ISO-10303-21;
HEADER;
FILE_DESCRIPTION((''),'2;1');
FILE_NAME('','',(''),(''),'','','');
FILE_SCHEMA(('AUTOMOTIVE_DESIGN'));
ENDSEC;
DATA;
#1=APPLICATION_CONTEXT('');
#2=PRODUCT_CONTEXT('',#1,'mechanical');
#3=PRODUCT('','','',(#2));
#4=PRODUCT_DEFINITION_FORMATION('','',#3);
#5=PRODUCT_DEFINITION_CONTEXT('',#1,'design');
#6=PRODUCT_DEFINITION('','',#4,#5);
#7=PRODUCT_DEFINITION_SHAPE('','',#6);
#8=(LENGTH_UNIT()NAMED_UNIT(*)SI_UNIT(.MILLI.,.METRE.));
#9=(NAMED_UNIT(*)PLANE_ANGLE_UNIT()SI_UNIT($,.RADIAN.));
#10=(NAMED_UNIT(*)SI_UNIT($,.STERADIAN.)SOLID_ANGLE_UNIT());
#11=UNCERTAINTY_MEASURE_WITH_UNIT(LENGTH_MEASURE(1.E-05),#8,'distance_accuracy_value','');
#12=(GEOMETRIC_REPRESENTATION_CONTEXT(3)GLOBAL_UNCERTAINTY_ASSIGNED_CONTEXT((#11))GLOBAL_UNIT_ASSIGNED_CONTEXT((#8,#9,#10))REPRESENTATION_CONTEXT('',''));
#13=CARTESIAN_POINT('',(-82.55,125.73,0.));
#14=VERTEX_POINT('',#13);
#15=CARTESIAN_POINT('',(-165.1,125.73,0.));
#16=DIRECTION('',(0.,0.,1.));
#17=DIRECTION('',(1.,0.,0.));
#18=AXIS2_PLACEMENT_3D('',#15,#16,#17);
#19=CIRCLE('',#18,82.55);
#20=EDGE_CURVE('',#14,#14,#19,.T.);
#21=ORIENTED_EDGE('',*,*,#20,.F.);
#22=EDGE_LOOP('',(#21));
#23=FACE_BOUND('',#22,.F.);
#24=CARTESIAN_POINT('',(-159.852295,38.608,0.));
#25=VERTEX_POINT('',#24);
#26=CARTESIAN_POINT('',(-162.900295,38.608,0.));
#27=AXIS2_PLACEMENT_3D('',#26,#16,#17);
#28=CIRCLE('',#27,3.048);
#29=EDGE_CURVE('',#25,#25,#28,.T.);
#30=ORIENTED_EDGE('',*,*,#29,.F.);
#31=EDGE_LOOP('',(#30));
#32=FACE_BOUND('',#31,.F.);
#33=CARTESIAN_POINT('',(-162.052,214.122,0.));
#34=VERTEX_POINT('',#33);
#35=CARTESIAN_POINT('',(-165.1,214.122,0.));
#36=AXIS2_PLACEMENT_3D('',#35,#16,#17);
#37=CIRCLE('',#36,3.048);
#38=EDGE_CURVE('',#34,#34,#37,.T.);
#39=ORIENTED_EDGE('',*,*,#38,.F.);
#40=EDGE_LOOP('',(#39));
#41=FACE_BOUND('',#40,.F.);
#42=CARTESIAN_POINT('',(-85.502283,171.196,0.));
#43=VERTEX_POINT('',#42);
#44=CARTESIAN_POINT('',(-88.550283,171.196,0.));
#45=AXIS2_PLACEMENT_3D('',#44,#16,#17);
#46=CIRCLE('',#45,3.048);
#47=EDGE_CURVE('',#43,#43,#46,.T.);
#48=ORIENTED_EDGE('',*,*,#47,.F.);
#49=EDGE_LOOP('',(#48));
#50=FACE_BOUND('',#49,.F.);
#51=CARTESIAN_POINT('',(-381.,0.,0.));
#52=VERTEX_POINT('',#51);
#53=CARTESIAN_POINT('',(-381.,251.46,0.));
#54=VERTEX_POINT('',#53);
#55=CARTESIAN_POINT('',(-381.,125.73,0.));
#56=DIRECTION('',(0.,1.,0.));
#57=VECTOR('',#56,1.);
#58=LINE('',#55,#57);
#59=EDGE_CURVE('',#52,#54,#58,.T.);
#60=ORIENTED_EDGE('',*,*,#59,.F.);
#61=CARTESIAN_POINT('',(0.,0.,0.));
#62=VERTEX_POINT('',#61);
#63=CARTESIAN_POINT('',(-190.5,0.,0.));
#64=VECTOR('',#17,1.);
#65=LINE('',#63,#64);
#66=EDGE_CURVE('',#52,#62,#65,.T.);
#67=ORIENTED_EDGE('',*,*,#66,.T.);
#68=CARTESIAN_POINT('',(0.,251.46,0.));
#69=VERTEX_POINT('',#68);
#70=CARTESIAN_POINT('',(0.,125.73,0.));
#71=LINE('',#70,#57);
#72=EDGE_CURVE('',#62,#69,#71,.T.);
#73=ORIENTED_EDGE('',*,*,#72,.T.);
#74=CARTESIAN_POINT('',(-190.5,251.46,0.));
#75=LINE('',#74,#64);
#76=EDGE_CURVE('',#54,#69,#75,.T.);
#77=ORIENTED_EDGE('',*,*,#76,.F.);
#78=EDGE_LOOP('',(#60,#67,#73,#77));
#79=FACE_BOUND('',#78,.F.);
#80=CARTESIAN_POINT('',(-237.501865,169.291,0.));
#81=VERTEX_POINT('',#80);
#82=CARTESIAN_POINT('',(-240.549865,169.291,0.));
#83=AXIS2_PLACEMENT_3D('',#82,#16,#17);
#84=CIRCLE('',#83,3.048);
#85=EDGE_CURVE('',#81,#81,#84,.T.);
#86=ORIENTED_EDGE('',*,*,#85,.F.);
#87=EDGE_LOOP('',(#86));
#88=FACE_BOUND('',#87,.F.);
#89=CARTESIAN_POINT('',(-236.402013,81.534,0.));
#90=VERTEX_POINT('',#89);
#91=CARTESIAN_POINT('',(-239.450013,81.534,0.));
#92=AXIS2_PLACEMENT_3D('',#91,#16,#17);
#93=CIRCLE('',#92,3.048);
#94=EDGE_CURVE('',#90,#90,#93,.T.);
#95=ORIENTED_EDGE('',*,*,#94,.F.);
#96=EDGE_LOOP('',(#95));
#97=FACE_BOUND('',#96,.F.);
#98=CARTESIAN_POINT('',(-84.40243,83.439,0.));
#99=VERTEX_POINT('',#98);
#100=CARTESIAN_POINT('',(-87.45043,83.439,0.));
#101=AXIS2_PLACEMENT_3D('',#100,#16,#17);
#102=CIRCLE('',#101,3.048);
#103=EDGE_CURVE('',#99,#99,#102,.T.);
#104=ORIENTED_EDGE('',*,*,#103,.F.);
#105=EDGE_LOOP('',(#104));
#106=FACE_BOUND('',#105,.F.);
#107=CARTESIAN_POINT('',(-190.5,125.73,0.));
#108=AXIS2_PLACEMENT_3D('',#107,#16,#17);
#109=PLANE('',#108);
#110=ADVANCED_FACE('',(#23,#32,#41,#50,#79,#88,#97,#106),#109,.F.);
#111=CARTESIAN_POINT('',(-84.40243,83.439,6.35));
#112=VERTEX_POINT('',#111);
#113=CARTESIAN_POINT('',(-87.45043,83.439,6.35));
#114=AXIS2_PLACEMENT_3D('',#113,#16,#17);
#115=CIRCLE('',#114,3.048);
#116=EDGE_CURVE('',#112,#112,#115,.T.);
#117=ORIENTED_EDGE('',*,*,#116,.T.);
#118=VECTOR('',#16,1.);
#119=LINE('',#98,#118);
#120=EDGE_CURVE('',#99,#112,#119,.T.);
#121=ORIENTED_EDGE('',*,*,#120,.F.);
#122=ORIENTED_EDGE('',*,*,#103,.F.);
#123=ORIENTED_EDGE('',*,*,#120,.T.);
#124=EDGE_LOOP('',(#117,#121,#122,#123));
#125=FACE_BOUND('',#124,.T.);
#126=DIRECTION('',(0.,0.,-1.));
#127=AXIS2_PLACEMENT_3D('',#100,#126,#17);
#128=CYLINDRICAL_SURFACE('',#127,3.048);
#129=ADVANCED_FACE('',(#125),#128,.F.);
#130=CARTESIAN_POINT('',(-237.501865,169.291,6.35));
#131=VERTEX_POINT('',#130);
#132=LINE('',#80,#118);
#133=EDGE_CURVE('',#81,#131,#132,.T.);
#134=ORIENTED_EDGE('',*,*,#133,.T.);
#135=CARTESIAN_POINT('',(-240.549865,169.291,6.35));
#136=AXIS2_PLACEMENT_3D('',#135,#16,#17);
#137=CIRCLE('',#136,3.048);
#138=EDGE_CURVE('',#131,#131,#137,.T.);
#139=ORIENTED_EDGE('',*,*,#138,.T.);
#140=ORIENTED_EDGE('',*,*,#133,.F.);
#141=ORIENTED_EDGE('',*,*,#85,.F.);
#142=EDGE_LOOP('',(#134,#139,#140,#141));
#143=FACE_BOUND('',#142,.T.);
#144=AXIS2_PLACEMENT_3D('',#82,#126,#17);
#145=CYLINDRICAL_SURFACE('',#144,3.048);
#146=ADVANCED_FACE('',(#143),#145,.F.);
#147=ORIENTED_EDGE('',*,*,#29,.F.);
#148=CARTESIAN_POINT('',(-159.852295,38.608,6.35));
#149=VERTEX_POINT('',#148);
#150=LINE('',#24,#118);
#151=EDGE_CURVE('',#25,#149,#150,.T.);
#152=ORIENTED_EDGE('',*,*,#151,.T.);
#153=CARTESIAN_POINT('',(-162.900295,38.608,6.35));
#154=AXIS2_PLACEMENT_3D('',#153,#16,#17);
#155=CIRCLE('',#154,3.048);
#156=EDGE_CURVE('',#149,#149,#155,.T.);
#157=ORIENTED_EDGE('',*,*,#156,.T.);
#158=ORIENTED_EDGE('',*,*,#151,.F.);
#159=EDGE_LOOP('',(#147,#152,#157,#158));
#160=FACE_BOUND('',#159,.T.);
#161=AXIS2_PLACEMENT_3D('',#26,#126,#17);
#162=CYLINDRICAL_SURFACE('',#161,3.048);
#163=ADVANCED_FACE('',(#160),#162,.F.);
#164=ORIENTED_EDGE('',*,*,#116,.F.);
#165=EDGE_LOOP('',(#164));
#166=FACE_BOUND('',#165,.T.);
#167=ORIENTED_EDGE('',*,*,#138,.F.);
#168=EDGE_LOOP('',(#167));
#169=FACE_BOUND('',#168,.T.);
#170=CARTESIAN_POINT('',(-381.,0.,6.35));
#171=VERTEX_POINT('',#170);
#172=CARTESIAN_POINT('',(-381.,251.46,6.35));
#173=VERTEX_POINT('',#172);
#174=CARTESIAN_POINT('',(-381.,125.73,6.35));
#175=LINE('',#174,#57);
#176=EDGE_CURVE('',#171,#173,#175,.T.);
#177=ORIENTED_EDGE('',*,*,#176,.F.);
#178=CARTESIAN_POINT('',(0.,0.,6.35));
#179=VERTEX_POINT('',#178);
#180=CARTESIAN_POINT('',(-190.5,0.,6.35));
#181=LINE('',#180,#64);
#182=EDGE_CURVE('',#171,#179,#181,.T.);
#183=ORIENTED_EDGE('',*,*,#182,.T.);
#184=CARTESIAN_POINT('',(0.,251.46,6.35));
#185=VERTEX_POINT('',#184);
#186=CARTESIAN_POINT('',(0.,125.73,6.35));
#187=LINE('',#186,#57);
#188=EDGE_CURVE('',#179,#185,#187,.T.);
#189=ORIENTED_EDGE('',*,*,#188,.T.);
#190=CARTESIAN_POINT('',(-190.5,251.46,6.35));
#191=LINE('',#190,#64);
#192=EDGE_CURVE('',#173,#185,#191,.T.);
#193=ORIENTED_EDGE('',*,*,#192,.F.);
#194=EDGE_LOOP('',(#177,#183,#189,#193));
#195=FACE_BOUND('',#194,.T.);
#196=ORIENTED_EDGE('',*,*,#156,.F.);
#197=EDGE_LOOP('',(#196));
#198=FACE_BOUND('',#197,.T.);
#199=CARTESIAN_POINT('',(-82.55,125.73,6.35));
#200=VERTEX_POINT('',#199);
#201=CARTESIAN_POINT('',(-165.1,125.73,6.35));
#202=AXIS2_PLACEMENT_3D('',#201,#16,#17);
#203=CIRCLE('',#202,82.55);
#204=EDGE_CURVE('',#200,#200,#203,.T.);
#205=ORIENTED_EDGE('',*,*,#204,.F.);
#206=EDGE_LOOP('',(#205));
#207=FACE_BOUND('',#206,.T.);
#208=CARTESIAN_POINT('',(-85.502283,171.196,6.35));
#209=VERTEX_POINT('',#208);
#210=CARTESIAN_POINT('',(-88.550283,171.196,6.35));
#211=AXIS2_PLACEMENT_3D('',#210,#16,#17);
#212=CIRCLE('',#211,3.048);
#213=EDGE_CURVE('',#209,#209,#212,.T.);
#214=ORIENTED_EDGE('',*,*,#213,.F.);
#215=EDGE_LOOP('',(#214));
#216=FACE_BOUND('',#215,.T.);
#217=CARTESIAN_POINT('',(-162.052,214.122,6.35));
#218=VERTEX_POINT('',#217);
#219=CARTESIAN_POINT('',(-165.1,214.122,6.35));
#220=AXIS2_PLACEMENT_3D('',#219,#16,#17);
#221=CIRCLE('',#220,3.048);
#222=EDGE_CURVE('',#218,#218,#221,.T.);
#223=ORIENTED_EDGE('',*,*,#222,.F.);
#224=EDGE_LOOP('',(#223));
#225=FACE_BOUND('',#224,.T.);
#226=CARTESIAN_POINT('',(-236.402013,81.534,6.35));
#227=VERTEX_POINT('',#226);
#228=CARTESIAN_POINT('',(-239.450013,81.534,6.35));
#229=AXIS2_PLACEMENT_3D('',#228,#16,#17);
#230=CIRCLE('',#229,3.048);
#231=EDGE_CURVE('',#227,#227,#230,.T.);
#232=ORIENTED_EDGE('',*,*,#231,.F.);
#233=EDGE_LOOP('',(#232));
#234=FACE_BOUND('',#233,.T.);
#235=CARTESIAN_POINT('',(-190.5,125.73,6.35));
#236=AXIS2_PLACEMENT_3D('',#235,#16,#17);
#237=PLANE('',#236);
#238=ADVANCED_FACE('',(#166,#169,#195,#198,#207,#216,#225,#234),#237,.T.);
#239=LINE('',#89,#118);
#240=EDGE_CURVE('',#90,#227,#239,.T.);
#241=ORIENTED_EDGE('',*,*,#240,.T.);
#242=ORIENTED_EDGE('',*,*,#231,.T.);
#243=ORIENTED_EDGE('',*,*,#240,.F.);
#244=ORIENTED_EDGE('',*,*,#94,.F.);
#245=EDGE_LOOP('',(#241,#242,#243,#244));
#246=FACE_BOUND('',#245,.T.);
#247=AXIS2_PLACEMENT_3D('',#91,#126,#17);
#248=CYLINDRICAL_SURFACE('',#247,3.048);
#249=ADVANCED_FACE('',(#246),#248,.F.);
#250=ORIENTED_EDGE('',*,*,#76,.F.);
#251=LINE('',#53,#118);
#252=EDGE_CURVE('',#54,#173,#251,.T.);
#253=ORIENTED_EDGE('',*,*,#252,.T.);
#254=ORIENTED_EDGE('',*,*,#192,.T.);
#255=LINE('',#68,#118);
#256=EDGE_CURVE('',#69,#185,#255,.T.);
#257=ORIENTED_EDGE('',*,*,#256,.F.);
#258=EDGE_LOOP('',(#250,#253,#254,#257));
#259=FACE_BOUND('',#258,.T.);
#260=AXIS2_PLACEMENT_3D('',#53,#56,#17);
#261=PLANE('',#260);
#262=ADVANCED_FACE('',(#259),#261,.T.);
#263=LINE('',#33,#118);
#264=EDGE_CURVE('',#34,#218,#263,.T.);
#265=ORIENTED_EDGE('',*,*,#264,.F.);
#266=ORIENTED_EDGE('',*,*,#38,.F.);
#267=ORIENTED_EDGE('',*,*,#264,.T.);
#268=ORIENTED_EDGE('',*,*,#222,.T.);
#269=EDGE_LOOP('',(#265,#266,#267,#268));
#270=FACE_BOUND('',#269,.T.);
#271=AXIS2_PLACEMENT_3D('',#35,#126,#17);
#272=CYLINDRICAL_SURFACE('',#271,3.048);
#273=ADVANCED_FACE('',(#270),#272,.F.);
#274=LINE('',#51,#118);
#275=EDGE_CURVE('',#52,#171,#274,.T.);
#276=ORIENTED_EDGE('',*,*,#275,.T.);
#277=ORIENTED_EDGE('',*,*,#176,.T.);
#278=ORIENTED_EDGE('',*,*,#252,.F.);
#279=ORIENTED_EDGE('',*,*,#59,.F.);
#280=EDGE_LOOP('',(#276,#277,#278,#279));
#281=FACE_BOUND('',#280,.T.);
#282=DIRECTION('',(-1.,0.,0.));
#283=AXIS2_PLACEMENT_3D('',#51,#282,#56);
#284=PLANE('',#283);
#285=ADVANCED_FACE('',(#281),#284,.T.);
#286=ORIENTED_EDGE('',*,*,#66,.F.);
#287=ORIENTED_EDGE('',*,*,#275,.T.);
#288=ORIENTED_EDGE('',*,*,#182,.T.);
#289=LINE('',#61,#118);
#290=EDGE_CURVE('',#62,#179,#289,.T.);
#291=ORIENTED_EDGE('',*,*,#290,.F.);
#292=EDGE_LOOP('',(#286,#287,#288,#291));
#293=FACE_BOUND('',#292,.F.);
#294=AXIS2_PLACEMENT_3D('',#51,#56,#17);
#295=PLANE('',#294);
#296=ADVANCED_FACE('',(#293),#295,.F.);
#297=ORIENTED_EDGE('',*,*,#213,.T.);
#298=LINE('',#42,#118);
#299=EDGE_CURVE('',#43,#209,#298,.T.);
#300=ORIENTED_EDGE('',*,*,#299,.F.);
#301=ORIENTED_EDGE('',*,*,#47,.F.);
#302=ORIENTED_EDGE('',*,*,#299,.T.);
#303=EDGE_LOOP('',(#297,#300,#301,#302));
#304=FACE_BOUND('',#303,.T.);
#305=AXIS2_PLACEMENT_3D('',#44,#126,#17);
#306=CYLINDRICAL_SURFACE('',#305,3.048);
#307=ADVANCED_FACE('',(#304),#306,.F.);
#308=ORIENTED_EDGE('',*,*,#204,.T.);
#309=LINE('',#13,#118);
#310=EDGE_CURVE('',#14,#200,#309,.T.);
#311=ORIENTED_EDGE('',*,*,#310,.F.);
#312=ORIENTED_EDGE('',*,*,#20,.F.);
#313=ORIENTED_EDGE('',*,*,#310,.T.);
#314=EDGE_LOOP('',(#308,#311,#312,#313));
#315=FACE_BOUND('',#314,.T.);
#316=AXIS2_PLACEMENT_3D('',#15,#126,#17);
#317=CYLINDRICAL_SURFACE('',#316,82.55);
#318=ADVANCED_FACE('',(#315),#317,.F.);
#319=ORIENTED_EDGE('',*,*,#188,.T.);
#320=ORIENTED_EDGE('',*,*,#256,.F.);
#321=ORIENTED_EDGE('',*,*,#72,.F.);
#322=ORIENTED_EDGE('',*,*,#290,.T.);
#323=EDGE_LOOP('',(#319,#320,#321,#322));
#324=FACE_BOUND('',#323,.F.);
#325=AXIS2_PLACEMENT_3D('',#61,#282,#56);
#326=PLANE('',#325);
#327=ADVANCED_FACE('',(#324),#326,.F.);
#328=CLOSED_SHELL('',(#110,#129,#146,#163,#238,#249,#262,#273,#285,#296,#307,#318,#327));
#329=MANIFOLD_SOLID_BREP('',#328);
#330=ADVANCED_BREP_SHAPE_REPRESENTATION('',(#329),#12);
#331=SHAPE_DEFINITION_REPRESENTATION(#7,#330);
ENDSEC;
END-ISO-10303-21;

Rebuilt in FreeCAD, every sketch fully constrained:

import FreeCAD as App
import Part
import Sketcher
from FreeCAD import Vector
Q = App.Units.Quantity

doc = App.newDocument("Part")
params = doc.addObject("Spreadsheet::Sheet", "Params")
for row, (alias, value) in enumerate([
    ("sketch1_diameter", "6.5 in"),
    ("sketch1_diameter2", "0.24 in"),
    ("sketch1_width", "15 in"),
    ("sketch1_height", "9.9 in"),
    ("pad1_length", "0.25 in"),
], start=1):
    params.set(f"A{row}", alias)
    params.set(f"B{row}", "=" + value)
    params.setAlias(f"B{row}", alias)

body = doc.addObject("PartDesign::Body", "Body")

# Sketch on XY plane
sketch1 = body.newObject("Sketcher::SketchObject", "Sketch")
sketch1.AttachmentSupport = (doc.getObject("XY_Plane"), [""])
sketch1.MapMode = "FlatFace"
sketch1.addGeometry([
    Part.LineSegment(Vector(-381, 251.5, 0), Vector(-381, 0, 0)),  # 0
    Part.LineSegment(Vector(-381, 0, 0), Vector(0, 0, 0)),  # 1
    Part.LineSegment(Vector(0, 0, 0), Vector(0, 251.5, 0)),  # 2
    Part.LineSegment(Vector(0, 251.5, 0), Vector(-381, 251.5, 0)),  # 3
    Part.Circle(Vector(-239.5, 81.5, 0), Vector(0, 0, 1), 3),  # 4
    Part.Circle(Vector(-162.9, 38.6, 0), Vector(0, 0, 1), 3),  # 5
    Part.Circle(Vector(-165.1, 125.7, 0), Vector(0, 0, 1), 82.5),  # 6
    Part.Circle(Vector(-87.5, 83.4, 0), Vector(0, 0, 1), 3),  # 7
    Part.Circle(Vector(-240.5, 169.3, 0), Vector(0, 0, 1), 3),  # 8
    Part.Circle(Vector(-88.6, 171.2, 0), Vector(0, 0, 1), 3),  # 9
    Part.Circle(Vector(-165.1, 214.1, 0), Vector(0, 0, 1), 3),  # 10
], False)
sketch1.addConstraint([
    Sketcher.Constraint("Coincident", 0, 2, 1, 1),
    Sketcher.Constraint("Coincident", 1, 2, 2, 1),
    Sketcher.Constraint("Coincident", 2, 2, 3, 1),
    Sketcher.Constraint("Coincident", 3, 2, 0, 1),
    Sketcher.Constraint("Vertical", 0),
    Sketcher.Constraint("Horizontal", 1),
    Sketcher.Constraint("Vertical", 2),
    Sketcher.Constraint("Horizontal", 3),
    Sketcher.Constraint("Coincident", 1, 2, -1, 1),
    Sketcher.Constraint("Equal", 4, 5),
    Sketcher.Constraint("Equal", 5, 7),
    Sketcher.Constraint("Equal", 7, 8),
    Sketcher.Constraint("Equal", 8, 9),
    Sketcher.Constraint("Equal", 9, 10),
    Sketcher.Constraint("Vertical", 6, 3, 10, 3),
    Sketcher.Constraint("Diameter", 6, Q("6.5 in")),
    Sketcher.Constraint("Diameter", 4, Q("0.24 in")),
    Sketcher.Constraint("DistanceX", 1, 1, 1, 2, Q("15 in")),
    Sketcher.Constraint("DistanceY", 0, 2, 0, 1, Q("9.9 in")),
    Sketcher.Constraint("DistanceX", 6, 3, -1, 1, Q("6.5 in")),
    Sketcher.Constraint("DistanceY", -1, 1, 4, 3, Q("3.21 in")),
    Sketcher.Constraint("DistanceY", -1, 1, 5, 3, Q("1.52 in")),
    Sketcher.Constraint("DistanceY", -1, 1, 6, 3, Q("4.95 in")),
    Sketcher.Constraint("DistanceY", -1, 1, 9, 3, Q("6.74 in")),
    Sketcher.Constraint("DistanceY", -1, 1, 10, 3, Q("8.43 in")),
    Sketcher.Constraint("DistanceY", 7, 3, 8, 3, Q("3.38 in")),
    Sketcher.Constraint("DistanceY", -1, 1, 7, 3, Q("3.285 in")),
    Sketcher.Constraint("DistanceX", 7, 3, -1, 1, 87.45043),
    Sketcher.Constraint("DistanceX", 8, 3, 5, 3, 77.64957),
    Sketcher.Constraint("DistanceX", 4, 3, 9, 3, 150.89973),
    Sketcher.Constraint("DistanceX", 4, 3, -1, 1, 239.450013),
    Sketcher.Constraint("DistanceX", 5, 3, -1, 1, 162.900295),
])
sketch1.setExpression("Constraints[15]", "Params.sketch1_diameter")
sketch1.setExpression("Constraints[16]", "Params.sketch1_diameter2")
sketch1.setExpression("Constraints[17]", "Params.sketch1_width")
sketch1.setExpression("Constraints[18]", "Params.sketch1_height")
pad1 = body.newObject("PartDesign::Pad", "Pad")
pad1.Profile = sketch1
pad1.setExpression("Length", "Params.pad1_length")

doc.recompute()
